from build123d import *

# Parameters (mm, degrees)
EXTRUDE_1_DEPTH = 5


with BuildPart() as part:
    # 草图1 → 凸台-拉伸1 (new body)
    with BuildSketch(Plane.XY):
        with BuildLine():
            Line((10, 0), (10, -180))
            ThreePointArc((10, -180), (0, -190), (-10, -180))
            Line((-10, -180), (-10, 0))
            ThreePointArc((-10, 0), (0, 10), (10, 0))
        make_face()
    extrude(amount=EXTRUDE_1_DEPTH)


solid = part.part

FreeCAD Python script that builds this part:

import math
import FreeCAD as App
import Part
import Sketcher
from FreeCAD import Vector
Q = App.Units.Quantity

doc = App.newDocument("Part")
body = doc.addObject("PartDesign::Body", "Body")

# Sketch on XY plane
sketch1 = body.newObject("Sketcher::SketchObject", "Sketch")
sketch1.AttachmentSupport = (doc.getObject("XY_Plane"), [""])
sketch1.MapMode = "FlatFace"
sketch1.addGeometry(Part.LineSegment(Vector(10, -180, 0), Vector(10, 0, 0)), False)
sketch1.addGeometry(Part.ArcOfCircle(Part.Circle(Vector(0, 0, 0), Vector(0, 0, 1), 10), math.radians(0), math.radians(180)), False)
sketch1.addGeometry(Part.LineSegment(Vector(-10, 0, 0), Vector(-10, -180, 0)), False)
sketch1.addGeometry(Part.ArcOfCircle(Part.Circle(Vector(0, -180, 0), Vector(0, 0, 1), 10), math.radians(180), math.radians(360)), False)
sketch1.addConstraint(Sketcher.Constraint("Tangent", 0, 2, 1, 1))
sketch1.addConstraint(Sketcher.Constraint("Tangent", 1, 2, 2, 1))
sketch1.addConstraint(Sketcher.Constraint("Tangent", 2, 2, 3, 1))
sketch1.addConstraint(Sketcher.Constraint("Tangent", 3, 2, 0, 1))
sketch1.addConstraint(Sketcher.Constraint("Vertical", 0))
sketch1.addConstraint(Sketcher.Constraint("Vertical", 2))
sketch1.addConstraint(Sketcher.Constraint("Coincident", 1, 3, -1, 1))
sketch1.addConstraint(Sketcher.Constraint("Radius", 1, Q("10 mm")))
sketch1.addConstraint(Sketcher.Constraint("DistanceY", 0, 1, 0, 2, Q("180 mm")))
pad1 = body.newObject("PartDesign::Pad", "Pad")
pad1.Profile = sketch1
pad1.Length = 5

doc.recompute()
